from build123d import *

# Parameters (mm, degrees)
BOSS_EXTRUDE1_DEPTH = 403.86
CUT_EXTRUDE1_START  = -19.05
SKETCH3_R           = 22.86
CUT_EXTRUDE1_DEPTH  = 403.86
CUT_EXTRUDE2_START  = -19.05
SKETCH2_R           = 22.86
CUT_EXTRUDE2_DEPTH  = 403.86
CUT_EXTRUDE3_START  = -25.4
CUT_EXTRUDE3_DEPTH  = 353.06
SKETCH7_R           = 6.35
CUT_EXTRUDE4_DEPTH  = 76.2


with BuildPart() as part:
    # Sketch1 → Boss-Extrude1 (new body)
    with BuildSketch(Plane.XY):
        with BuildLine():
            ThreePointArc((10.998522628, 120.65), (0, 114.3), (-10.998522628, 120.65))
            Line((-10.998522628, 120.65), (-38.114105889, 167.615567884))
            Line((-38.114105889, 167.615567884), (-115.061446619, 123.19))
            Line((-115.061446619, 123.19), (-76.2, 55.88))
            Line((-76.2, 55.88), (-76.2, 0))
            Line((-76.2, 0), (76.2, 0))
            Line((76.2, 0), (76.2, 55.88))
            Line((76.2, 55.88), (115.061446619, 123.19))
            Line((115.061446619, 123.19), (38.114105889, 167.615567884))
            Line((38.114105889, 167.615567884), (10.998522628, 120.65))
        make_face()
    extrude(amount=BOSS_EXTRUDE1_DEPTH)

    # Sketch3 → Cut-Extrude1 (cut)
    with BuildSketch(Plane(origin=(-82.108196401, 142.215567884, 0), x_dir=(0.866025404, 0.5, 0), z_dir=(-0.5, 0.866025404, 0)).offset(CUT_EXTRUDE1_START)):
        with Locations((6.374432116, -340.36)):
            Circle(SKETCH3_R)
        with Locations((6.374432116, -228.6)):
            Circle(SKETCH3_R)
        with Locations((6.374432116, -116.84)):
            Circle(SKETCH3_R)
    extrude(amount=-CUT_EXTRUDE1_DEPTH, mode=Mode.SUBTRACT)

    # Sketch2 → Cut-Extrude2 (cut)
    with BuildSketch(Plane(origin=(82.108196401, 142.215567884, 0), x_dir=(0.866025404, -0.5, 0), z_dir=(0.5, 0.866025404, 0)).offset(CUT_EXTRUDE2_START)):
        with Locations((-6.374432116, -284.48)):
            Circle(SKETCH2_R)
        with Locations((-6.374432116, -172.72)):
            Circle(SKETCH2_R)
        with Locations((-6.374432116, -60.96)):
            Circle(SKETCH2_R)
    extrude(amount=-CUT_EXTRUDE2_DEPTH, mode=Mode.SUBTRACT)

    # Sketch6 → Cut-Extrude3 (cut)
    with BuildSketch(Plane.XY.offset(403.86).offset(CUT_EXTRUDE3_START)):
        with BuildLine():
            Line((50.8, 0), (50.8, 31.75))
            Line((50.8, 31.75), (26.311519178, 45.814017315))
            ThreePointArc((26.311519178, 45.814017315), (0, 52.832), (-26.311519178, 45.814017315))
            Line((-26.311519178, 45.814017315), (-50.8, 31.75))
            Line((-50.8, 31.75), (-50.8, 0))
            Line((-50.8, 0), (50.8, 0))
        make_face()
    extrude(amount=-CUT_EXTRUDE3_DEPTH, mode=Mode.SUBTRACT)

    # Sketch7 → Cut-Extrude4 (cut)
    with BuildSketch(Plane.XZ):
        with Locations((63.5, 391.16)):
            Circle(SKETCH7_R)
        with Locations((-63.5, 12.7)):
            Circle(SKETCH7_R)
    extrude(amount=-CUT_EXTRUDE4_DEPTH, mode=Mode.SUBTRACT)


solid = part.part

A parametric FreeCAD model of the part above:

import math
import FreeCAD as App
import Part
import Sketcher
from FreeCAD import Vector
Q = App.Units.Quantity

doc = App.newDocument("Part")
body = doc.addObject("PartDesign::Body", "Body")

# Sketch on XY plane
sketch1 = body.newObject("Sketcher::SketchObject", "Sketch")
sketch1.AttachmentSupport = (doc.getObject("XY_Plane"), [""])
sketch1.MapMode = "FlatFace"
sketch1.addGeometry(Part.ArcOfCircle(Part.Circle(Vector(0, 127, 0), Vector(0, 0, 1), 13), math.radians(-150), math.radians(-30)), False)
sketch1.addGeometry(Part.LineSegment(Vector(-11, 121, 0), Vector(-38, 168, 0)), False)
sketch1.addGeometry(Part.LineSegment(Vector(-38, 168, 0), Vector(-115, 123, 0)), False)
sketch1.addGeometry(Part.LineSegment(Vector(-115, 123, 0), Vector(-76, 56, 0)), False)
sketch1.addGeometry(Part.LineSegment(Vector(-76, 56, 0), Vector(-76, 0, 0)), False)
sketch1.addGeometry(Part.LineSegment(Vector(-76, 0, 0), Vector(76, 0, 0)), False)
sketch1.addGeometry(Part.LineSegment(Vector(76, 0, 0), Vector(76, 56, 0)), False)
sketch1.addGeometry(Part.LineSegment(Vector(76, 56, 0), Vector(115, 123, 0)), False)
sketch1.addGeometry(Part.LineSegment(Vector(115, 123, 0), Vector(38, 168, 0)), False)
sketch1.addGeometry(Part.LineSegment(Vector(38, 168, 0), Vector(11, 121, 0)), False)
sketch1.addConstraint(Sketcher.Constraint("Tangent", 0, 1, 1, 1))
sketch1.addConstraint(Sketcher.Constraint("Coincident", 1, 2, 2, 1))
sketch1.addConstraint(Sketcher.Constraint("Coincident", 2, 2, 3, 1))
sketch1.addConstraint(Sketcher.Constraint("Coincident", 3, 2, 4, 1))
sketch1.addConstraint(Sketcher.Constraint("Coincident", 4, 2, 5, 1))
sketch1.addConstraint(Sketcher.Constraint("Coincident", 5, 2, 6, 1))
sketch1.addConstraint(Sketcher.Constraint("Coincident", 6, 2, 7, 1))
sketch1.addConstraint(Sketcher.Constraint("Coincident", 7, 2, 8, 1))
sketch1.addConstraint(Sketcher.Constraint("Coincident", 8, 2, 9, 1))
sketch1.addConstraint(Sketcher.Constraint("Tangent", 9, 2, 0, 2))
sketch1.addConstraint(Sketcher.Constraint("Vertical", 4))
sketch1.addConstraint(Sketcher.Constraint("Horizontal", 5))
sketch1.addConstraint(Sketcher.Constraint("Vertical", 6))
sketch1.addConstraint(Sketcher.Constraint("Symmetric", 4, 2, 5, 2, -1, 1))
sketch1.addConstraint(Sketcher.Constraint("Symmetric", 2, 2, 7, 2, -2))
sketch1.addConstraint(Sketcher.Constraint("Symmetric", 1, 2, 8, 2, -2))
sketch1.addConstraint(Sketcher.Constraint("PointOnObject", 0, 3, -2))
sketch1.addConstraint(Sketcher.Constraint("Perpendicular", 1, 2))
sketch1.addConstraint(Sketcher.Constraint("Perpendicular", 2, 3))
sketch1.addConstraint(Sketcher.Constraint("Perpendicular", 7, 8))
sketch1.addConstraint(Sketcher.Constraint("Radius", 0, Q("0.5 in")))
sketch1.addConstraint(Sketcher.Constraint("DistanceX", 5, 1, 5, 2, Q("6 in")))
sketch1.addConstraint(Sketcher.Constraint("DistanceY", 4, 2, 4, 1, Q("2.2 in")))
sketch1.addConstraint(Sketcher.Constraint("DistanceY", -1, 1, 0, 3, Q("5 in")))
sketch1.addConstraint(Sketcher.Constraint("Angle", 1, Q("120 deg")))
sketch1.addConstraint(Sketcher.Constraint("DistanceY", 0, 1, 2, 2, Q("0.1 in")))
pad1 = body.newObject("PartDesign::Pad", "Pad")
pad1.Profile = sketch1
pad1.Length = Q("15.9 in")

# Sketch on an angled plane
sketch2 = body.newObject("Sketcher::SketchObject", "Sketch001")
sketch2.Placement = App.Placement(Vector(-72.583196, 125.717784, 0), App.Rotation(Vector(0.866025404, 0.5, 0), Vector(0, 0, -1), Vector(-0.5, 0.866025404, 0), "ZXY"))
sketch2.addGeometry(Part.Circle(Vector(6, -340, 0), Vector(0, 0, 1), 23), False)
sketch2.addGeometry(Part.Circle(Vector(6, -229, 0), Vector(0, 0, 1), 23), False)
sketch2.addGeometry(Part.Circle(Vector(6, -117, 0), Vector(0, 0, 1), 23), False)
sketch2.addConstraint(Sketcher.Constraint("Equal", 0, 1))
sketch2.addConstraint(Sketcher.Constraint("Equal", 1, 2))
sketch2.addConstraint(Sketcher.Constraint("Vertical", 0, 3, 1, 3))
sketch2.addConstraint(Sketcher.Constraint("Vertical", 1, 3, 2, 3))
sketch2.addConstraint(Sketcher.Constraint("Diameter", 0, Q("1.8 in")))
sketch2.addConstraint(Sketcher.Constraint("DistanceY", 1, 3, -1, 1, Q("9 in")))
sketch2.addConstraint(Sketcher.Constraint("DistanceY", 0, 3, -1, 1, Q("13.4 in")))
sketch2.addConstraint(Sketcher.Constraint("DistanceY", 2, 3, -1, 1, Q("4.6 in")))
sketch2.addConstraint(Sketcher.Constraint("DistanceX", -1, 1, 0, 3, 6.374432))
pocket1 = body.newObject("PartDesign::Pocket", "Pocket")
pocket1.Profile = sketch2
pocket1.Length = Q("15.9 in")

# Sketch on an angled plane
sketch3 = body.newObject("Sketcher::SketchObject", "Sketch002")
sketch3.Placement = App.Placement(Vector(72.583196, 125.717784, 0), App.Rotation(Vector(0.866025404, -0.5, 0), Vector(0, 0, -1), Vector(0.5, 0.866025404, 0), "ZXY"))
sketch3.addGeometry(Part.Circle(Vector(-6, -284, 0), Vector(0, 0, 1), 23), False)
sketch3.addGeometry(Part.Circle(Vector(-6, -173, 0), Vector(0, 0, 1), 23), False)
sketch3.addGeometry(Part.Circle(Vector(-6, -61, 0), Vector(0, 0, 1), 23), False)
sketch3.addConstraint(Sketcher.Constraint("Equal", 0, 1))
sketch3.addConstraint(Sketcher.Constraint("Equal", 1, 2))
sketch3.addConstraint(Sketcher.Constraint("Vertical", 0, 3, 1, 3))
sketch3.addConstraint(Sketcher.Constraint("Vertical", 1, 3, 2, 3))
sketch3.addConstraint(Sketcher.Constraint("Diameter", 0, Q("1.8 in")))
sketch3.addConstraint(Sketcher.Constraint("DistanceY", 0, 3, -1, 1, Q("11.2 in")))
sketch3.addConstraint(Sketcher.Constraint("DistanceY", 1, 3, -1, 1, Q("6.8 in")))
sketch3.addConstraint(Sketcher.Constraint("DistanceY", 2, 3, -1, 1, Q("2.4 in")))
sketch3.addConstraint(Sketcher.Constraint("DistanceX", 0, 3, -1, 1, 6.374432))
pocket2 = body.newObject("PartDesign::Pocket", "Pocket001")
pocket2.Profile = sketch3
pocket2.Length = Q("15.9 in")

# Sketch on XY plane
sketch4 = body.newObject("Sketcher::SketchObject", "Sketch003")
sketch4.AttachmentSupport = (doc.getObject("XY_Plane"), [""])
sketch4.MapMode = "FlatFace"
sketch4.AttachmentOffset = App.Placement(Vector(0, 0, 14.9 * 25.4), App.Rotation())
sketch4.addGeometry(Part.LineSegment(Vector(51, 0, 0), Vector(51, 32, 0)), False)
sketch4.addGeometry(Part.LineSegment(Vector(51, 32, 0), Vector(26, 46, 0)), False)
sketch4.addGeometry(Part.ArcOfCircle(Part.Circle(Vector(0, 0, 0), Vector(0, 0, 1), 53), math.radians(60), math.radians(120)), False)
sketch4.addGeometry(Part.LineSegment(Vector(-26, 46, 0), Vector(-51, 32, 0)), False)
sketch4.addGeometry(Part.LineSegment(Vector(-51, 32, 0), Vector(-51, 0, 0)), False)
sketch4.addGeometry(Part.LineSegment(Vector(-51, 0, 0), Vector(51, 0, 0)), False)
sketch4.addConstraint(Sketcher.Constraint("Coincident", 0, 2, 1, 1))
sketch4.addConstraint(Sketcher.Constraint("Tangent", 1, 2, 2, 1))
sketch4.addConstraint(Sketcher.Constraint("Tangent", 2, 2, 3, 1))
sketch4.addConstraint(Sketcher.Constraint("Coincident", 3, 2, 4, 1))
sketch4.addConstraint(Sketcher.Constraint("Coincident", 4, 2, 5, 1))
sketch4.addConstraint(Sketcher.Constraint("Coincident", 5, 2, 0, 1))
sketch4.addConstraint(Sketcher.Constraint("Vertical", 0))
sketch4.addConstraint(Sketcher.Constraint("Vertical", 4))
sketch4.addConstraint(Sketcher.Constraint("Horizontal", 5))
sketch4.addConstraint(Sketcher.Constraint("Coincident", 2, 3, -1, 1))
sketch4.addConstraint(Sketcher.Constraint("Symmetric", 4, 2, 5, 2, -1, 1))
sketch4.addConstraint(Sketcher.Constraint("Horizontal", 1, 2, 2, 2))
sketch4.addConstraint(Sketcher.Constraint("DistanceX", 5, 1, 5, 2, Q("4 in")))
sketch4.addConstraint(Sketcher.Constraint("Radius", 2, Q("2.08 in")))
sketch4.addConstraint(Sketcher.Constraint("DistanceY", 0, 1, 0, 2, Q("1.25 in")))
pocket3 = body.newObject("PartDesign::Pocket", "Pocket002")
pocket3.Profile = sketch4
pocket3.Length = Q("13.9 in")

# Sketch on XZ plane
sketch5 = body.newObject("Sketcher::SketchObject", "Sketch004")
sketch5.AttachmentSupport = (doc.getObject("XZ_Plane"), [""])
sketch5.MapMode = "FlatFace"
sketch5.addGeometry(Part.Circle(Vector(64, 391, 0), Vector(0, 0, 1), 6), False)
sketch5.addGeometry(Part.Circle(Vector(-64, 13, 0), Vector(0, 0, 1), 6), False)
sketch5.addConstraint(Sketcher.Constraint("Equal", 0, 1))
sketch5.addConstraint(Sketcher.Constraint("Diameter", 0, Q("0.5 in")))
sketch5.addConstraint(Sketcher.Constraint("DistanceX", 1, 3, 0, 3, Q("5 in")))
sketch5.addConstraint(Sketcher.Constraint("DistanceX", -1, 1, 0, 3, Q("2.5 in")))
sketch5.addConstraint(Sketcher.Constraint("DistanceY", -1, 1, 0, 3, Q("15.4 in")))
sketch5.addConstraint(Sketcher.Constraint("DistanceY", -1, 1, 1, 3, Q("0.5 in")))
pocket4 = body.newObject("PartDesign::Pocket", "Pocket003")
pocket4.Profile = sketch5
pocket4.Length = Q("3 in")

doc.recompute()
